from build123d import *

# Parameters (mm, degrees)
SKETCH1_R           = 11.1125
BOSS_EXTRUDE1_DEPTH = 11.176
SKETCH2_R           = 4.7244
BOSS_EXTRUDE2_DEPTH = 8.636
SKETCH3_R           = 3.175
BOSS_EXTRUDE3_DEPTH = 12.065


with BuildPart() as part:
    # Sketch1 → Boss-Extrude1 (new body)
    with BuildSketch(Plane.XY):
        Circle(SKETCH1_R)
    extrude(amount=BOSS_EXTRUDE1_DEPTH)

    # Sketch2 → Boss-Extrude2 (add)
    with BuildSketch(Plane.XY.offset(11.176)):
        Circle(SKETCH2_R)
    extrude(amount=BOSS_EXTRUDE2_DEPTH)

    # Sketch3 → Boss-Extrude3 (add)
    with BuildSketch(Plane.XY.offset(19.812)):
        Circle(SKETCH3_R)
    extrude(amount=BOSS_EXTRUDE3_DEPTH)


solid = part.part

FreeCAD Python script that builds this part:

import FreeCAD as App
import Part
import Sketcher

V = App.Vector
Q = App.Units.Quantity

doc = App.newDocument("Part")
body = doc.addObject("PartDesign::Body", "Body")

sketch1 = body.newObject("Sketcher::SketchObject", "Sketch")
sketch1.AttachmentSupport = (doc.getObject("XY_Plane"), [""])
sketch1.MapMode = "FlatFace"
sketch1.addGeometry(Part.Circle(V(0, 0, 0), V(0, 0, 1), 11), False)
sketch1.addConstraint([
    Sketcher.Constraint("Coincident", 0, 3, -1, 1),
    Sketcher.Constraint("Diameter", 0, Q("0.875 in")),
])
pad1 = body.newObject("PartDesign::Pad", "Pad")
pad1.Profile = sketch1
pad1.Length = Q("0.44 in")

sketch2 = body.newObject("Sketcher::SketchObject", "Sketch001")
sketch2.AttachmentSupport = (doc.getObject("XY_Plane"), [""])
sketch2.MapMode = "FlatFace"
sketch2.AttachmentOffset = App.Placement(V(0, 0, 0.44 * 25.4), App.Rotation())
sketch2.addGeometry(Part.Circle(V(0, 0, 0), V(0, 0, 1), 4.7), False)
sketch2.addConstraint([
    Sketcher.Constraint("Coincident", 0, 3, -1, 1),
    Sketcher.Constraint("Diameter", 0, Q("0.372 in")),
])
pad2 = body.newObject("PartDesign::Pad", "Pad001")
pad2.Profile = sketch2
pad2.Length = Q("0.34 in")

sketch3 = body.newObject("Sketcher::SketchObject", "Sketch002")
sketch3.AttachmentSupport = (doc.getObject("XY_Plane"), [""])
sketch3.MapMode = "FlatFace"
sketch3.AttachmentOffset = App.Placement(V(0, 0, 0.78 * 25.4), App.Rotation())
sketch3.addGeometry(Part.Circle(V(0, 0, 0), V(0, 0, 1), 3.2), False)
sketch3.addConstraint([
    Sketcher.Constraint("Coincident", 0, 3, -1, 1),
    Sketcher.Constraint("Diameter", 0, Q("0.25 in")),
])
pad3 = body.newObject("PartDesign::Pad", "Pad002")
pad3.Profile = sketch3
pad3.Length = Q("0.475 in")

doc.recompute()
